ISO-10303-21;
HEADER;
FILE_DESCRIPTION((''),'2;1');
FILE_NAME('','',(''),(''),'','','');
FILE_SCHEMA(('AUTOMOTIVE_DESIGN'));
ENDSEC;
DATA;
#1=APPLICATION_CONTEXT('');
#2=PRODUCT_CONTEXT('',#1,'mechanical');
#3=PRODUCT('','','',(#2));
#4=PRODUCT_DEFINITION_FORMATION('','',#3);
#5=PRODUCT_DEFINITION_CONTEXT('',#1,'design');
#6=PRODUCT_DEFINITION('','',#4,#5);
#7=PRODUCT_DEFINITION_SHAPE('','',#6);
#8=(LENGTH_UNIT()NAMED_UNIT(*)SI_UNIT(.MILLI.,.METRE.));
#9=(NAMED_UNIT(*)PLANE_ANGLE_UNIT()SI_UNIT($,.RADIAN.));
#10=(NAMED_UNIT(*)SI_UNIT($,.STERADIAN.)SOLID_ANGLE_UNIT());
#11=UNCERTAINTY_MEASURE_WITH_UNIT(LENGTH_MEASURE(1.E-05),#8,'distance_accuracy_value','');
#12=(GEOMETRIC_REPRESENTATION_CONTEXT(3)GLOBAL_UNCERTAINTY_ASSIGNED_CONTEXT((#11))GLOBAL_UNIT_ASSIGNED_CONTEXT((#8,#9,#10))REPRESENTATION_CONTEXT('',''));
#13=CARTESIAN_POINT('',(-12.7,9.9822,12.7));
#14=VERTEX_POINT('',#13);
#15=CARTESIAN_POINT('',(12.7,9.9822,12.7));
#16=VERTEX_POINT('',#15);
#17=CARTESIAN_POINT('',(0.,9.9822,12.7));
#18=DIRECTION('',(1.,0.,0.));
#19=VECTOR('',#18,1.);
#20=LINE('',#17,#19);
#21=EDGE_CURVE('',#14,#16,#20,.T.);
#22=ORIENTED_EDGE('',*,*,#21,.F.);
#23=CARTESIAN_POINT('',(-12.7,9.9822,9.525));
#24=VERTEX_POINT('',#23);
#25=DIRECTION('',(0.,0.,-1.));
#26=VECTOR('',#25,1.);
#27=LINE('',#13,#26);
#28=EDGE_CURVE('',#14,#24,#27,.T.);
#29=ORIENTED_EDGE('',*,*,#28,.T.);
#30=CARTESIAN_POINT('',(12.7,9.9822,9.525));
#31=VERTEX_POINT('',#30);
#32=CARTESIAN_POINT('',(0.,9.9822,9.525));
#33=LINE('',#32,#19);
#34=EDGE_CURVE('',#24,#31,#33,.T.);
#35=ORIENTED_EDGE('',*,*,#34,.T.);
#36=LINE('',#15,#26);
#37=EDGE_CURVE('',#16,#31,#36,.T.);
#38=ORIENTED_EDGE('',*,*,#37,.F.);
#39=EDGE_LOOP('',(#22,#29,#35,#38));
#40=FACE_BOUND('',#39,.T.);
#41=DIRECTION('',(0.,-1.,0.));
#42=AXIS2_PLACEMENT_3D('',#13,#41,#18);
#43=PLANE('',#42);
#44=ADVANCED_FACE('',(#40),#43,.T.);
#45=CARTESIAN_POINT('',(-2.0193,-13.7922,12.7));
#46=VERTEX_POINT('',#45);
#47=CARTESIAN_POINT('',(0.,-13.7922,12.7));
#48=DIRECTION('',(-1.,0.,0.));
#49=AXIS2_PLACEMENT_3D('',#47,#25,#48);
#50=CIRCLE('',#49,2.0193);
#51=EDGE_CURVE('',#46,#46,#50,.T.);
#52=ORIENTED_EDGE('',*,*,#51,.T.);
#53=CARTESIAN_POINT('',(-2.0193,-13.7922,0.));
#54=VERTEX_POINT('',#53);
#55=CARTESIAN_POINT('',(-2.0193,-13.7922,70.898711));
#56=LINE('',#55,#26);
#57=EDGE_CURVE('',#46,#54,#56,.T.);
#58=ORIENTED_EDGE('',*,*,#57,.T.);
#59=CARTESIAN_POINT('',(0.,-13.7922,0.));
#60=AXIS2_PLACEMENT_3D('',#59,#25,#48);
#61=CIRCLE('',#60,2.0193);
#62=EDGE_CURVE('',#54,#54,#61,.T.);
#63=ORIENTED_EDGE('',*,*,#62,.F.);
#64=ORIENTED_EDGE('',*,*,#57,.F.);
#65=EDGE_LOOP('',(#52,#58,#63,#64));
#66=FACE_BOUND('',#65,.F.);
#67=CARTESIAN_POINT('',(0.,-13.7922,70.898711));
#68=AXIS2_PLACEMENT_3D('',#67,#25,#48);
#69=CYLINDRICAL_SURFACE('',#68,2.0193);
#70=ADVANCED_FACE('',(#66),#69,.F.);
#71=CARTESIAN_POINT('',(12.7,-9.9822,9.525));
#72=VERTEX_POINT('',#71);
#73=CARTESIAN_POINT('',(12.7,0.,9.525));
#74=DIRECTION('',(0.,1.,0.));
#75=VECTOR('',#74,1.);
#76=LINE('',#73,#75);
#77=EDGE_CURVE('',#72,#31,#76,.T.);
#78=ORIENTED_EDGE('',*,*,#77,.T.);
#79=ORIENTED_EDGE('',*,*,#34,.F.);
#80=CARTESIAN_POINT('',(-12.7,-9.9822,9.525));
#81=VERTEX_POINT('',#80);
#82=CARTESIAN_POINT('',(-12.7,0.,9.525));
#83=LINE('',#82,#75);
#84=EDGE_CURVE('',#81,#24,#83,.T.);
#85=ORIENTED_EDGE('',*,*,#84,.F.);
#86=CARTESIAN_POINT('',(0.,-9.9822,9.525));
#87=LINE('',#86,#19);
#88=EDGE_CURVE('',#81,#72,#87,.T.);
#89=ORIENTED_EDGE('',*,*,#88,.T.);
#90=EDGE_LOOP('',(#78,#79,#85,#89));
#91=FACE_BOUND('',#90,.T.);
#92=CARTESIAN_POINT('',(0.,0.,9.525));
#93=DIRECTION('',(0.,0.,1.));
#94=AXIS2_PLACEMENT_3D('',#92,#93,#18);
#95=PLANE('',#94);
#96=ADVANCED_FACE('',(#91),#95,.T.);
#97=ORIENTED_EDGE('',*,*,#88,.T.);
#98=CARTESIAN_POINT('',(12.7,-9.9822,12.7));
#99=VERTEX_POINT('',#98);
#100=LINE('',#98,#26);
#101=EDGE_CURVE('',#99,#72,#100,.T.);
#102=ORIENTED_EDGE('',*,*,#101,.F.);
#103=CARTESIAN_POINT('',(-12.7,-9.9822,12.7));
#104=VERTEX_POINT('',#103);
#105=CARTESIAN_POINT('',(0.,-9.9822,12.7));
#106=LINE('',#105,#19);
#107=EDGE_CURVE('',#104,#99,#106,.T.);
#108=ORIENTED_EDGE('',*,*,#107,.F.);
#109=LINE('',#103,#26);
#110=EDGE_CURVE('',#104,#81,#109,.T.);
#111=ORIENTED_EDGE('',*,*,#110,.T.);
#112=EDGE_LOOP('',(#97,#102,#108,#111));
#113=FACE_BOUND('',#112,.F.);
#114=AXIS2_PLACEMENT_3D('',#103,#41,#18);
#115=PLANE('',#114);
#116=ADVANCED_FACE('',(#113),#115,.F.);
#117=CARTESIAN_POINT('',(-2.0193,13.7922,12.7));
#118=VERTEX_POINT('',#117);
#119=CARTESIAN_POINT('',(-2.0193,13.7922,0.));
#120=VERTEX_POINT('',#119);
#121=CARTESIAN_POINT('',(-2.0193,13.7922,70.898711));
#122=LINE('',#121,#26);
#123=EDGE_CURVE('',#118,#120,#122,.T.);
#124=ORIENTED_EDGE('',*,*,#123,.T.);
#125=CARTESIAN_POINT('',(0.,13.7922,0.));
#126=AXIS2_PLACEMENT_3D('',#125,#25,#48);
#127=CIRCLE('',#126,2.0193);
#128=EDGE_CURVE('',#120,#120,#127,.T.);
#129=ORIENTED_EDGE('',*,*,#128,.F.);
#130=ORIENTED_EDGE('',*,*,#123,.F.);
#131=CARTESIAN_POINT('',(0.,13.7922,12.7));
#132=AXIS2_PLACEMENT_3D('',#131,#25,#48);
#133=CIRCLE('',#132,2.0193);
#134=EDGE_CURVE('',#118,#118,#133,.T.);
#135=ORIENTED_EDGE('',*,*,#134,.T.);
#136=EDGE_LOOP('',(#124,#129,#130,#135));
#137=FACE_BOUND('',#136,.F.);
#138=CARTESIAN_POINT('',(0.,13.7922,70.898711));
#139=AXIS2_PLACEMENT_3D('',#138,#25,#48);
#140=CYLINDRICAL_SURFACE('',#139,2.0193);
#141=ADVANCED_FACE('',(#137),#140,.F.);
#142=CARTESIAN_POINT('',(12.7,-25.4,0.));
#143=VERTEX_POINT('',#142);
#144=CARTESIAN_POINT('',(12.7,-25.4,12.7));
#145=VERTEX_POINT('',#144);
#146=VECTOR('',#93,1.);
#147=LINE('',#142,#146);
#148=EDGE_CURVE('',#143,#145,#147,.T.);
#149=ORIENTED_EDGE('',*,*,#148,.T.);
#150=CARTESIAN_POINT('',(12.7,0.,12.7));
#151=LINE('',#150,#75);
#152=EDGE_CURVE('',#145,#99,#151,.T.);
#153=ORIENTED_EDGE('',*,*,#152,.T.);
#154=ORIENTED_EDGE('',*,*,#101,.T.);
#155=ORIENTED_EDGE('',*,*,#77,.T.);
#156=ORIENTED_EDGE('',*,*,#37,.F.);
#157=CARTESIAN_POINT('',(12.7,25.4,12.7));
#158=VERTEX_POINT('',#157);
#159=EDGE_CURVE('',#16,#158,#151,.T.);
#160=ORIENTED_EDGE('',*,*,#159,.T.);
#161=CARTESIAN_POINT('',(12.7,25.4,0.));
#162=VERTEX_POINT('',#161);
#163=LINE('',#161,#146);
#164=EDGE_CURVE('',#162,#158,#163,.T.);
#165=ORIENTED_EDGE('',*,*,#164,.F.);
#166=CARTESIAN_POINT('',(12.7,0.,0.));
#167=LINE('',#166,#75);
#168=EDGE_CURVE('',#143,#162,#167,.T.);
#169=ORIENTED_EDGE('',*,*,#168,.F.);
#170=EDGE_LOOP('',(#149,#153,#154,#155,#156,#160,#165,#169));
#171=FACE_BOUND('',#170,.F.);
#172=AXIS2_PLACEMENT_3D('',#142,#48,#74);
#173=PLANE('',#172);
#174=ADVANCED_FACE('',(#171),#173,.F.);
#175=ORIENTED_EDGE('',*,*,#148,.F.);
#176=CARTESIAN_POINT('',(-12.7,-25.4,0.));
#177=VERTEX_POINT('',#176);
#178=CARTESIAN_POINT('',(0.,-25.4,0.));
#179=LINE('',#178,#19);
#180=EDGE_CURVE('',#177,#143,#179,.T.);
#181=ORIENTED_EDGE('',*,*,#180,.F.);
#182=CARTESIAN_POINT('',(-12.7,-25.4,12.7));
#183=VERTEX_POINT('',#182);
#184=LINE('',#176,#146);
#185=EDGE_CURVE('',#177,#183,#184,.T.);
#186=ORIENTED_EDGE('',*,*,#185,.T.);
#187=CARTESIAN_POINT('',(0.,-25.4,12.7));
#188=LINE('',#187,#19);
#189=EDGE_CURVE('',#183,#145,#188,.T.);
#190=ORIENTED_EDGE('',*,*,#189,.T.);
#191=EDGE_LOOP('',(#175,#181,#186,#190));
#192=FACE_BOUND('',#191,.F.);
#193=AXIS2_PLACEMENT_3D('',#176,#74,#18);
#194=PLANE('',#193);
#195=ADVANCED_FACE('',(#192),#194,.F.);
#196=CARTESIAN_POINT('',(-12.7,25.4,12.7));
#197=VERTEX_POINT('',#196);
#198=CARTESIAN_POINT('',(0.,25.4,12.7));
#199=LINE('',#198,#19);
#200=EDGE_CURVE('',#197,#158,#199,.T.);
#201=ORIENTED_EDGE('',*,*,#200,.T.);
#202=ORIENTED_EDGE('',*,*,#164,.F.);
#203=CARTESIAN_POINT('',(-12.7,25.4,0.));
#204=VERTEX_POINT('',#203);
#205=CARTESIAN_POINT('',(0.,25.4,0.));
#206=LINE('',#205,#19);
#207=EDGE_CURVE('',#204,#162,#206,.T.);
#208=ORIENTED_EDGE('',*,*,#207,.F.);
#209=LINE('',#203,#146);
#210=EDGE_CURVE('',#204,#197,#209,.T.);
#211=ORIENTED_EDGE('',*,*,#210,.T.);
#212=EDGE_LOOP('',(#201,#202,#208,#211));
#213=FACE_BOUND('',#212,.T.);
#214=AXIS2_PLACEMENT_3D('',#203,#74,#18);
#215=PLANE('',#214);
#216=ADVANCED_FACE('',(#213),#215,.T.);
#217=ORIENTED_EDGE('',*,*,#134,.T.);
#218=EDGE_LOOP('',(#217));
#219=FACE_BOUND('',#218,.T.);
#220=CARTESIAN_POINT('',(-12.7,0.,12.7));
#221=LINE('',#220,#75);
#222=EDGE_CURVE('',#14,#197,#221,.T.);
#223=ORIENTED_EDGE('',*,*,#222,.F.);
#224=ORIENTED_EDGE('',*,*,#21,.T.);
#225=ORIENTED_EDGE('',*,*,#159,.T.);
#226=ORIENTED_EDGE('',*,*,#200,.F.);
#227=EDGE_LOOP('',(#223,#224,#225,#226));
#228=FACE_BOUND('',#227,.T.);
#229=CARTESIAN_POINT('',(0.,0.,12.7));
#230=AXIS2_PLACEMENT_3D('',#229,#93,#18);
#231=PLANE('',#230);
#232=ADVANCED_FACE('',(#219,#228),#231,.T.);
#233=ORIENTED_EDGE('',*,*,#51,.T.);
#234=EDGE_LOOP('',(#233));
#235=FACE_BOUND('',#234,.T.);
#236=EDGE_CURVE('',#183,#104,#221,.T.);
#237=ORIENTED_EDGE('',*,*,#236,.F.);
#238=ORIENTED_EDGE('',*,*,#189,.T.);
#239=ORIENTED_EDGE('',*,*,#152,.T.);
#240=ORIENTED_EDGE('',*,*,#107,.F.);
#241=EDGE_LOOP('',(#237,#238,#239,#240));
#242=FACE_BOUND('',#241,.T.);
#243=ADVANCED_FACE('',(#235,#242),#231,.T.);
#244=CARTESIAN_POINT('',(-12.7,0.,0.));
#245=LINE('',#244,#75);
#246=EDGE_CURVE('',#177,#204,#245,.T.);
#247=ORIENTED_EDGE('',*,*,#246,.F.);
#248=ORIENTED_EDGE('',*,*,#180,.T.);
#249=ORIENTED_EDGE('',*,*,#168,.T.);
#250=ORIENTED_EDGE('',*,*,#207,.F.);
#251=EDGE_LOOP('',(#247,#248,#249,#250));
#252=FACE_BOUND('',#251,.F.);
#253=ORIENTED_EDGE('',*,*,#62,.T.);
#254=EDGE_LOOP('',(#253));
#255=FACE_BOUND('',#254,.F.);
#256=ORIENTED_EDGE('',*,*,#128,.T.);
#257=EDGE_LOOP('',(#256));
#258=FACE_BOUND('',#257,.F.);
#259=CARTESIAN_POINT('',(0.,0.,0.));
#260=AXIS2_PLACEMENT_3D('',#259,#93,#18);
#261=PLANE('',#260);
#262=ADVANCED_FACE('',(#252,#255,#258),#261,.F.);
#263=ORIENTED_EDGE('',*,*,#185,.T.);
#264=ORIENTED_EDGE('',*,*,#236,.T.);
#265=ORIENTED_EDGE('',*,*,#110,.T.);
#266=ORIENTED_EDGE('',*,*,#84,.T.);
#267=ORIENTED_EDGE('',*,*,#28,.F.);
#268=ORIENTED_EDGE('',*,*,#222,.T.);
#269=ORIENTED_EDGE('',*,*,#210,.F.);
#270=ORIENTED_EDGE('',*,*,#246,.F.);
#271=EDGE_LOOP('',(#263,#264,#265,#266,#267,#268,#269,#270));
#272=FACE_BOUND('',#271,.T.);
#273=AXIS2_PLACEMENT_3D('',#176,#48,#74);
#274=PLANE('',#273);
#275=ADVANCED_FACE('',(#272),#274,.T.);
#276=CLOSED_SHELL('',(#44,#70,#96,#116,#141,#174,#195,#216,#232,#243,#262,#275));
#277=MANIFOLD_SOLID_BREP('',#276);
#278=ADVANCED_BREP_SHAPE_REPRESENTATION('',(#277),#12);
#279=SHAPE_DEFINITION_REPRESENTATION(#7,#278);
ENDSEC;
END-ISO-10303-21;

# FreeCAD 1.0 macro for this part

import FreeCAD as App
import Part
import Sketcher
Q = App.Units.Quantity


def add_polygon(sketch, points):
    """Adds a closed chain of lines whose ends are joined by coincident constraints."""
    first, n = sketch.GeometryCount, len(points)
    for a, b in zip(points, points[1:] + points[:1]):
        sketch.addGeometry(Part.LineSegment(App.Vector(*a, 0), App.Vector(*b, 0)), False)
    for i in range(n):
        sketch.addConstraint(Sketcher.Constraint("Coincident", first + i, 2, first + (i + 1) % n, 1))

doc = App.newDocument("Part")
params = doc.addObject("Spreadsheet::Sheet", "Params")
for row, (alias, value) in enumerate([
    ("sketch1_width", "1 in"),
    ("sketch1_height", "2 in"),
    ("pad1_length", "0.5 in"),
    ("sketch2_width", "1 in"),
    ("sketch2_height", "0.786 in"),
    ("pocket1_length", "0.125 in"),
    ("sketch3_diameter", "0.159 in"),
    ("hole_diameter", "0.159 in"),
], start=1):
    params.set(f"A{row}", alias)
    params.set(f"B{row}", "=" + value)
    params.setAlias(f"B{row}", alias)

body = doc.addObject("PartDesign::Body", "Body")

sketch1 = body.newObject("Sketcher::SketchObject", "Sketch")
sketch1.AttachmentSupport = (doc.getObject("XY_Plane"), [""])
sketch1.MapMode = "FlatFace"
add_polygon(sketch1, [(-13, 25), (-13, -25), (13, -25), (13, 25)])
sketch1.addConstraint([
    Sketcher.Constraint("Vertical", 0),
    Sketcher.Constraint("Horizontal", 1),
    Sketcher.Constraint("Vertical", 2),
    Sketcher.Constraint("Horizontal", 3),
    Sketcher.Constraint("Symmetric", 0, 2, 2, 2, -1, 1),
    Sketcher.Constraint("DistanceX", 1, 1, 1, 2, Q("1 in")),
    Sketcher.Constraint("DistanceY", 0, 2, 0, 1, Q("2 in")),
])
sketch1.setExpression("Constraints[9]", "Params.sketch1_width")
sketch1.setExpression("Constraints[10]", "Params.sketch1_height")
pad1 = body.newObject("PartDesign::Pad", "Pad")
pad1.Profile = sketch1
pad1.setExpression("Length", "Params.pad1_length")

sketch2 = body.newObject("Sketcher::SketchObject", "Sketch001")
sketch2.AttachmentSupport = (doc.getObject("XY_Plane"), [""])
sketch2.MapMode = "FlatFace"
sketch2.AttachmentOffset = App.Placement(App.Vector(0, 0, 0.5 * 25.4), App.Rotation())
add_polygon(sketch2, [(-13, 10), (-13, -10), (13, -10), (13, 10)])
sketch2.addConstraint([
    Sketcher.Constraint("Vertical", 0),
    Sketcher.Constraint("Horizontal", 1),
    Sketcher.Constraint("Vertical", 2),
    Sketcher.Constraint("Horizontal", 3),
    Sketcher.Constraint("Symmetric", 0, 2, 2, 2, -1, 1),
    Sketcher.Constraint("DistanceX", 1, 1, 1, 2, Q("1 in")),
    Sketcher.Constraint("DistanceY", 0, 2, 0, 1, Q("0.786 in")),
])
sketch2.setExpression("Constraints[9]", "Params.sketch2_width")
sketch2.setExpression("Constraints[10]", "Params.sketch2_height")
pocket1 = body.newObject("PartDesign::Pocket", "Pocket")
pocket1.Profile = sketch2
pocket1.setExpression("Length", "Params.pocket1_length")

sketch3 = body.newObject("Sketcher::SketchObject", "Sketch002")
sketch3.AttachmentSupport = (doc.getObject("XY_Plane"), [""])
sketch3.MapMode = "FlatFace"
sketch3.AttachmentOffset = App.Placement(App.Vector(0, 0, 0.5 * 25.4), App.Rotation())
sketch3.addGeometry([
    Part.Circle(App.Vector(0, 13.8, 0), App.Vector(0, 0, 1), 2),
    Part.Circle(App.Vector(0, -13.8, 0), App.Vector(0, 0, 1), 2),
], False)
sketch3.addConstraint([
    Sketcher.Constraint("Equal", 0, 1),
    Sketcher.Constraint("Symmetric", 0, 3, 1, 3, -1, 1),
    Sketcher.Constraint("PointOnObject", 0, 3, -2),
    Sketcher.Constraint("Diameter", 0, Q("0.159 in")),
    Sketcher.Constraint("DistanceY", -1, 1, 0, 3, Q("0.543 in")),
])
sketch3.setExpression("Constraints[3]", "Params.sketch3_diameter")
doc.recompute()
hole = body.newObject("PartDesign::Hole", "Hole")
hole.Profile = sketch3
hole.ThreadType = "None"
hole.setExpression("Diameter", "Params.hole_diameter")
hole.DepthType = "ThroughAll"

doc.recompute()
